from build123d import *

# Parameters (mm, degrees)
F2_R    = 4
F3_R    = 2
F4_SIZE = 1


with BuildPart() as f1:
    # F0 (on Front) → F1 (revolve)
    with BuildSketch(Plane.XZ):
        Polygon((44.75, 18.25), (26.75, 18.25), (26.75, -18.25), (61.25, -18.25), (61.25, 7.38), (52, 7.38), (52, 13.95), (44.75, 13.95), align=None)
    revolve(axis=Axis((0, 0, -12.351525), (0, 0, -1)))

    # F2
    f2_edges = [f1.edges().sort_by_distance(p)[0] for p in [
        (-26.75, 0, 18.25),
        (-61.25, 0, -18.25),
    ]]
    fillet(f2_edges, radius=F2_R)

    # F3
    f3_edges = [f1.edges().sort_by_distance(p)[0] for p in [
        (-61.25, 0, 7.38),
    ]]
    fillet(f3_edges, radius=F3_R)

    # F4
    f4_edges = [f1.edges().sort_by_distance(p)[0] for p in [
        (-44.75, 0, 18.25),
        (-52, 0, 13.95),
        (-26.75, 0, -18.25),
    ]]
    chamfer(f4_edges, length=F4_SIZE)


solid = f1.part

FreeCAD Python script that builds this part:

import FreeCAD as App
import Part
import Sketcher
from FreeCAD import Vector


def edges_at(feature, points):
    """Names of the edges that pass closest to the given points."""
    edges = feature.Shape.Edges
    near = lambda p: min(range(len(edges)), key=lambda i: edges[i].distToShape(Part.Vertex(*p))[0])
    return sorted({f"Edge{near(p) + 1}" for p in points})


def add_polygon(sketch, points):
    """Adds a closed chain of lines whose ends are joined by coincident constraints."""
    first, n = sketch.GeometryCount, len(points)
    for a, b in zip(points, points[1:] + points[:1]):
        sketch.addGeometry(Part.LineSegment(App.Vector(*a, 0), App.Vector(*b, 0)), False)
    for i in range(n):
        sketch.addConstraint(Sketcher.Constraint("Coincident", first + i, 2, first + (i + 1) % n, 1))

doc = App.newDocument("Part")
body = doc.addObject("PartDesign::Body", "Body")

# Sketch on XZ plane
sketch1 = body.newObject("Sketcher::SketchObject", "Sketch")
sketch1.AttachmentSupport = (doc.getObject("XZ_Plane"), [""])
sketch1.MapMode = "FlatFace"
add_polygon(sketch1, [(44.75, 18.25), (26.75, 18.25), (26.75, -18.25), (61.25, -18.25), (61.25, 7.38), (52, 7.38), (52, 13.95), (44.75, 13.95)])  # lines 0-7
sketch1.addConstraint([
    Sketcher.Constraint("Horizontal", 0),
    Sketcher.Constraint("Vertical", 1),
    Sketcher.Constraint("Horizontal", 2),
    Sketcher.Constraint("Vertical", 3),
    Sketcher.Constraint("Horizontal", 4),
    Sketcher.Constraint("Vertical", 5),
    Sketcher.Constraint("Horizontal", 6),
    Sketcher.Constraint("Vertical", 7),
    Sketcher.Constraint("DistanceX", 0, 2, 0, 1, 18.0),
    Sketcher.Constraint("DistanceX", 2, 1, 2, 2, 34.5),
    Sketcher.Constraint("DistanceY", 1, 2, 1, 1, 36.5),
    Sketcher.Constraint("DistanceY", 7, 1, 7, 2, 4.3),
    Sketcher.Constraint("DistanceX", -1, 1, 4, 2, 52.0),
    Sketcher.Constraint("DistanceX", 4, 2, 4, 1, 9.25),
    Sketcher.Constraint("DistanceY", 3, 1, 3, 2, 25.63),
    Sketcher.Constraint("DistanceY", -1, 1, 0, 2, 18.25),
])
revolution = body.newObject("PartDesign::Revolution", "Revolution")
revolution.Profile = sketch1
revolution.ReferenceAxis = (sketch1, ["V_Axis"])
revolution.Angle = 360
doc.recompute()

fillet = body.newObject("PartDesign::Fillet", "Fillet")
fillet.Base = (revolution, edges_at(revolution, [(-26.75, 0, 18.25), (-61.25, 0, -18.25)]))
fillet.Radius = 4
doc.recompute()

fillet2 = body.newObject("PartDesign::Fillet", "Fillet001")
fillet2.Base = (fillet, edges_at(fillet, [(-61.25, 0, 7.38)]))
fillet2.Radius = 2
doc.recompute()

chamfer = body.newObject("PartDesign::Chamfer", "Chamfer")
chamfer.Base = (fillet2, edges_at(fillet2, [(-44.75, 0, 18.25), (-52, 0, 13.95), (-26.75, 0, -18.25)]))
chamfer.Size = 1

doc.recompute()
